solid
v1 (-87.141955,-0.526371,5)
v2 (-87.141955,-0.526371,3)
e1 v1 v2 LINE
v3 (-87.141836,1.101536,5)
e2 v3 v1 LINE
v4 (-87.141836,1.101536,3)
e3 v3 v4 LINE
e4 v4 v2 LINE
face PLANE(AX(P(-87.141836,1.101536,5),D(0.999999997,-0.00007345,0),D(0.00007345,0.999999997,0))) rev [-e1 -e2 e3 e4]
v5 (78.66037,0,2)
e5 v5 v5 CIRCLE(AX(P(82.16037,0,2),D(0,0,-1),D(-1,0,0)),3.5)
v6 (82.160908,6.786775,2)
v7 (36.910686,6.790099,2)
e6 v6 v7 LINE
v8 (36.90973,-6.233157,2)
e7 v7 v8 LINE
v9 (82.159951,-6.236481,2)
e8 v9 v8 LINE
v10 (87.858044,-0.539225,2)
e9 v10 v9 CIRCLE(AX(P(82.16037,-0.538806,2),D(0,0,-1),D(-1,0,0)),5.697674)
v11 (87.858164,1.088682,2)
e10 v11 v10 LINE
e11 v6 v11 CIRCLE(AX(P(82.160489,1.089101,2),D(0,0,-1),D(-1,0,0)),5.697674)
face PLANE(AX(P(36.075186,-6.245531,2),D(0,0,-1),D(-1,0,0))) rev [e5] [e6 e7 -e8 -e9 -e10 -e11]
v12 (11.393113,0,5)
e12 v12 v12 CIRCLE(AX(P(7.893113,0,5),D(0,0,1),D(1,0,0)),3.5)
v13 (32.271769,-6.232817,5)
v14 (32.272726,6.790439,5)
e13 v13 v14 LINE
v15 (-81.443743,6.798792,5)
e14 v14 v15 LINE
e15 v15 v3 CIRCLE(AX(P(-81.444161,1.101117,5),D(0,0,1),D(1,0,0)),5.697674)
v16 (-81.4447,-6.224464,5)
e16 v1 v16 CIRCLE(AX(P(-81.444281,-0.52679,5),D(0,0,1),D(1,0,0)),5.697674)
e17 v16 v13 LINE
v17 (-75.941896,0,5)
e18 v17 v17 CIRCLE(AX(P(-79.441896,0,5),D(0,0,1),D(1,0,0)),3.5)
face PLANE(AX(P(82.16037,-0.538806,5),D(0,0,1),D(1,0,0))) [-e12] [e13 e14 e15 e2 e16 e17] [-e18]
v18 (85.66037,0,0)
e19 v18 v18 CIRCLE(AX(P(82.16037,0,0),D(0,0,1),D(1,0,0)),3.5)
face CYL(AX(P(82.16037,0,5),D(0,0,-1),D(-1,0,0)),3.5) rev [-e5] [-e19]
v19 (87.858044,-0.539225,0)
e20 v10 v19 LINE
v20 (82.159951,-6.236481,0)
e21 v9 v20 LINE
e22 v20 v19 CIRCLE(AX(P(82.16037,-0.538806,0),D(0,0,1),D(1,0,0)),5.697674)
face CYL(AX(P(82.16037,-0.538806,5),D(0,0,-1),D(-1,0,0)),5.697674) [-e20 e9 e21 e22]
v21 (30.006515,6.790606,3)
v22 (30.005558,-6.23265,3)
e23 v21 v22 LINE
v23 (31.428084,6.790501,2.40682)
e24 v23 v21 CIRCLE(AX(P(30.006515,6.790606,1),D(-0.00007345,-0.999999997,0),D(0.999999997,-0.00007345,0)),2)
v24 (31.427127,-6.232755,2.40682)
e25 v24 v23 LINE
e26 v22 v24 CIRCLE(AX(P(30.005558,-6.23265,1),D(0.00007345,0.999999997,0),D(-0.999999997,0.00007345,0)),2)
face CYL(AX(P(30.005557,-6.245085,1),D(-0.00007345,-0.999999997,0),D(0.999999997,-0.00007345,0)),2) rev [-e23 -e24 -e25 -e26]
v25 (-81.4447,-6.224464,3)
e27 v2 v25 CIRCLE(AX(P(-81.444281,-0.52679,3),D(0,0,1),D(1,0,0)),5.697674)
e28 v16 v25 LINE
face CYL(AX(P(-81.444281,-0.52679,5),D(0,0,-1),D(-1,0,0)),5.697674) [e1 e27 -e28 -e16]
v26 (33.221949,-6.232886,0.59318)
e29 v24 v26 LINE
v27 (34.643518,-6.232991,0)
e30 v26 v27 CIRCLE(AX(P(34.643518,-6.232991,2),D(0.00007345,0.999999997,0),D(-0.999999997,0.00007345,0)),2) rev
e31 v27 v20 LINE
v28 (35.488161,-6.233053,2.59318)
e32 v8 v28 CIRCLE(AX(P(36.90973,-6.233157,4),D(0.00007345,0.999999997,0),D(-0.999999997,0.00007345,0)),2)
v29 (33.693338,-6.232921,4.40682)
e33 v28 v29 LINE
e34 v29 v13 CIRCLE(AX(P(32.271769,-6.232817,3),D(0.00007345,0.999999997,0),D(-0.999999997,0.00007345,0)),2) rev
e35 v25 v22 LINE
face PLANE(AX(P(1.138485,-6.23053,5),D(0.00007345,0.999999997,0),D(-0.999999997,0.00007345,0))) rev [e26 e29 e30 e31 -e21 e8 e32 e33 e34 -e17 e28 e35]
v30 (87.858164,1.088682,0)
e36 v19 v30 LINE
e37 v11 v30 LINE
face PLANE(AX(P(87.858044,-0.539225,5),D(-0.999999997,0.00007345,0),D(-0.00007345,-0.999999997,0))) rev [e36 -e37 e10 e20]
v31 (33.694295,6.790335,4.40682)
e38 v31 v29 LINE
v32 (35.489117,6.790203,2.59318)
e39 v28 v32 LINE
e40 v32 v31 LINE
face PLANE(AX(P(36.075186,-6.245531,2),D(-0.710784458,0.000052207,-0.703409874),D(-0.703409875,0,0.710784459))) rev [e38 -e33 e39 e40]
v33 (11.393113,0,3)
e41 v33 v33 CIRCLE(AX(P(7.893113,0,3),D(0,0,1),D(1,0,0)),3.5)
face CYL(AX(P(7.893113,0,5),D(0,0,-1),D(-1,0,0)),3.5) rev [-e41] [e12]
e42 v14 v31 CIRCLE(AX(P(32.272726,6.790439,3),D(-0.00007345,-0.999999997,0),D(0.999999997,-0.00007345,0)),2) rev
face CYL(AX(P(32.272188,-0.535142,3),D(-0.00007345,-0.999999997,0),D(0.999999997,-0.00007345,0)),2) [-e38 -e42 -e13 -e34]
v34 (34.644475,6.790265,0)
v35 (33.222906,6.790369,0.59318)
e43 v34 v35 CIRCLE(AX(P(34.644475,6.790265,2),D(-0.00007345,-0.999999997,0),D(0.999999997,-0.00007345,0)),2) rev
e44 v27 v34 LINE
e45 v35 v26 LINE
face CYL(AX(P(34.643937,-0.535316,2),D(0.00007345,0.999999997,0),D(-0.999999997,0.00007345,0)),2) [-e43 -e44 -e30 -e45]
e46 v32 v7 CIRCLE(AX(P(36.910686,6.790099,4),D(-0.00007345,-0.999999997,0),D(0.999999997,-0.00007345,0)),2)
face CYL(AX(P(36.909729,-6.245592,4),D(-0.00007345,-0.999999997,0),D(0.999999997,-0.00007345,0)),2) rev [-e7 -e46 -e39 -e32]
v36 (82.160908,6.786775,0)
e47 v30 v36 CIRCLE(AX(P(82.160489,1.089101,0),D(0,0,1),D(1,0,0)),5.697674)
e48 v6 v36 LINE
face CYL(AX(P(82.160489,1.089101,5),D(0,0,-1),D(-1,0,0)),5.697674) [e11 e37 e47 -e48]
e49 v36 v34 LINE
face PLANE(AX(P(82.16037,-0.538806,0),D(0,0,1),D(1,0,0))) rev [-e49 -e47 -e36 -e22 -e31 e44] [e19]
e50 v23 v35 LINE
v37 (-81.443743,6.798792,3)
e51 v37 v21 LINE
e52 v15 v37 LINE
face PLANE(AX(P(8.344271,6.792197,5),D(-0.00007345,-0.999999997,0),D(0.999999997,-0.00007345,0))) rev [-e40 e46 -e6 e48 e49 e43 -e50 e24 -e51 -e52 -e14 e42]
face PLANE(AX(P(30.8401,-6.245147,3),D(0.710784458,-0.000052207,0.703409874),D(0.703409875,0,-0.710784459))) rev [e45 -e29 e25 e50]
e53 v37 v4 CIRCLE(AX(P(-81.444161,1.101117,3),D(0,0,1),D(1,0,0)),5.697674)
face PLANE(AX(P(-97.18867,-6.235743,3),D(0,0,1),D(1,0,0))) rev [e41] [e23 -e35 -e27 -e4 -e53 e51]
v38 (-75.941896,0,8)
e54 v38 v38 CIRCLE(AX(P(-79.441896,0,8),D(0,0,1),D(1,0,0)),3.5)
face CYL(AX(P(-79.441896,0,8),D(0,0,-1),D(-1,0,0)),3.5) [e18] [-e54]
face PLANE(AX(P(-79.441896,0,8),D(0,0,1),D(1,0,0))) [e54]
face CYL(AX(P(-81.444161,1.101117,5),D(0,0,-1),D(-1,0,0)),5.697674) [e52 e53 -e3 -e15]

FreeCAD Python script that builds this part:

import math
import FreeCAD as App
import Part
import Sketcher


def edges_at(feature, points):
    """Names of the edges that pass closest to the given points."""
    edges = feature.Shape.Edges
    near = lambda p: min(range(len(edges)), key=lambda i: edges[i].distToShape(Part.Vertex(*p))[0])
    return sorted({f"Edge{near(p) + 1}" for p in points})

doc = App.newDocument("Part")
params = doc.addObject("Spreadsheet::Sheet", "Params")
for row, (alias, value) in enumerate([
    ("sketch1_diameter", "7 mm"),
    ("sketch1_diameter2", "7 mm"),
    ("pad1_length", "5 mm"),
    ("sketch2_height", "3 mm"),
    ("fillet_radius", "2 mm"),
    ("sketch3_diameter", "7 mm"),
    ("pad2_length", "3 mm"),
], start=1):
    params.set(f"A{row}", alias)
    params.set(f"B{row}", "=" + value)
    params.setAlias(f"B{row}", alias)

body = doc.addObject("PartDesign::Body", "Body")

sketch1 = body.newObject("Sketcher::SketchObject", "Sketch")
sketch1.AttachmentSupport = (doc.getObject("XY_Plane"), [""])
sketch1.MapMode = "FlatFace"
sketch1.addGeometry([
    Part.LineSegment(App.Vector(1.138485, -6.23053, 0), App.Vector(82.159951, -6.236481, 0)),
    Part.ArcOfCircle(Part.Circle(App.Vector(82.16037, -0.538806, 0), App.Vector(0, 0, 1), 5.697674), math.radians(-90.004208), math.radians(-0.004208)),
    Part.LineSegment(App.Vector(87.858044, -0.539225, 0), App.Vector(87.858164, 1.088682, 0)),
    Part.ArcOfCircle(Part.Circle(App.Vector(82.160489, 1.089101, 0), App.Vector(0, 0, 1), 5.697674), math.radians(-0.004208), math.radians(89.995792)),
    Part.LineSegment(App.Vector(82.160908, 6.786775, 0), App.Vector(8.344271, 6.792197, 0)),
    Part.LineSegment(App.Vector(8.344271, 6.792197, 0), App.Vector(-81.443743, 6.798792, 0)),
    Part.ArcOfCircle(Part.Circle(App.Vector(-81.444161, 1.101117, 0), App.Vector(0, 0, 1), 5.697674), math.radians(89.995792), math.radians(179.995792)),
    Part.LineSegment(App.Vector(-87.141836, 1.101536, 0), App.Vector(-87.141955, -0.526371, 0)),
    Part.ArcOfCircle(Part.Circle(App.Vector(-81.444281, -0.52679, 0), App.Vector(0, 0, 1), 5.697674), math.radians(179.995792), math.radians(269.995792)),
    Part.LineSegment(App.Vector(-81.4447, -6.224464, 0), App.Vector(1.138485, -6.23053, 0)),
    Part.Circle(App.Vector(7.893113, 0, 0), App.Vector(0, 0, 1), 3.5),
    Part.Circle(App.Vector(82.16037, 0, 0), App.Vector(0, 0, 1), 3.5),
], False)
sketch1.addConstraint([
    Sketcher.Constraint("Coincident", 0, 2, 1, 1),
    Sketcher.Constraint("Coincident", 1, 2, 2, 1),
    Sketcher.Constraint("Coincident", 2, 2, 3, 1),
    Sketcher.Constraint("Coincident", 3, 2, 4, 1),
    Sketcher.Constraint("Coincident", 4, 2, 5, 1),
    Sketcher.Constraint("Coincident", 5, 2, 6, 1),
    Sketcher.Constraint("Coincident", 6, 2, 7, 1),
    Sketcher.Constraint("Coincident", 7, 2, 8, 1),
    Sketcher.Constraint("Coincident", 8, 2, 9, 1),
    Sketcher.Constraint("Coincident", 9, 2, 0, 1),
    Sketcher.Constraint("PointOnObject", 10, 3, -1),
    Sketcher.Constraint("PointOnObject", 11, 3, -1),
    Sketcher.Constraint("Diameter", 10, 7.0),
    Sketcher.Constraint("Diameter", 11, 7.0),
    Sketcher.Constraint("Radius", 1, 5.697674),
    Sketcher.Constraint("Radius", 3, 5.697674),
    Sketcher.Constraint("Radius", 6, 5.697674),
    Sketcher.Constraint("Radius", 8, 5.697674),
    Sketcher.Constraint("DistanceY", 1, 2, 3, 2, 7.326),
    Sketcher.Constraint("DistanceY", 8, 2, 6, 2, 7.326),
    Sketcher.Constraint("DistanceY", -1, 1, 3, 3, 1.089101),
    Sketcher.Constraint("DistanceX", 8, 2, -1, 1, 81.4447),
    Sketcher.Constraint("DistanceX", 4, 2, 11, 3, 73.816099),
    Sketcher.Constraint("DistanceX", 4, 2, 1, 3, 73.816099),
    Sketcher.Constraint("DistanceX", -1, 1, 1, 3, 82.16037),
    Sketcher.Constraint("DistanceX", -1, 1, 3, 3, 82.160489),
    Sketcher.Constraint("DistanceX", 6, 3, -1, 1, 81.444161),
    Sketcher.Constraint("DistanceX", 8, 3, -1, 1, 81.444281),
    Sketcher.Constraint("DistanceY", 8, 3, -1, 1, 0.52679),
    Sketcher.Constraint("DistanceX", -1, 1, 0, 2, 82.159951),
    Sketcher.Constraint("DistanceY", 0, 2, -1, 1, 6.236481),
    Sketcher.Constraint("DistanceY", -1, 1, 5, 2, 6.798792),
    Sketcher.Constraint("DistanceY", 7, 2, -1, 1, 0.526371),
    Sketcher.Constraint("DistanceY", 9, 2, -1, 1, 6.23053),
    Sketcher.Constraint("DistanceX", 10, 3, 0, 2, 74.266839),
    Sketcher.Constraint("DistanceY", 2, 2, 3, 3, 0.000418),
    Sketcher.Constraint("DistanceX", 3, 3, 3, 2, 0.000418),
    Sketcher.Constraint("DistanceY", 3, 2, 4, 2, 0.005422),
    Sketcher.Constraint("DistanceX", 6, 3, 5, 2, 0.000418),
    Sketcher.Constraint("DistanceX", 9, 2, 10, 3, 6.754628),
])
sketch1.setExpression("Constraints[12]", "Params.sketch1_diameter")
sketch1.setExpression("Constraints[13]", "Params.sketch1_diameter2")
pad1 = body.newObject("PartDesign::Pad", "Pad")
pad1.Profile = sketch1
pad1.setExpression("Length", "Params.pad1_length")

sketch2 = body.newObject("Sketcher::SketchObject", "Sketch001")
sketch2.Placement = App.Placement(App.Vector(0.000499, 6.79281, 0), App.Rotation(App.Vector(0.999999997, -0.00007345, 0), App.Vector(0, 0, -0.999999999), App.Vector(0.00007345, 0.999999997, 0), "ZXY"))
sketch2.addGeometry([
    Part.LineSegment(App.Vector(-97.2, 0, 0), App.Vector(-97.2, -3, 0)),
    Part.LineSegment(App.Vector(-97.2, -3, 0), App.Vector(30.8, -3, 0)),
    Part.LineSegment(App.Vector(30.8, -3, 0), App.Vector(33.8, 0, 0)),
    Part.LineSegment(App.Vector(33.8, 0, 0), App.Vector(-97.2, 0, 0)),
    Part.LineSegment(App.Vector(36.1, -2, 0), App.Vector(33.1, -5, 0)),
    Part.LineSegment(App.Vector(33.1, -5, 0), App.Vector(91.1, -5, 0)),
    Part.LineSegment(App.Vector(91.1, -5, 0), App.Vector(91.1, -2, 0)),
    Part.LineSegment(App.Vector(91.1, -2, 0), App.Vector(36.1, -2, 0)),
], False)
sketch2.addConstraint([
    Sketcher.Constraint("Coincident", 0, 2, 1, 1),
    Sketcher.Constraint("Coincident", 1, 2, 2, 1),
    Sketcher.Constraint("Coincident", 2, 2, 3, 1),
    Sketcher.Constraint("Coincident", 3, 2, 0, 1),
    Sketcher.Constraint("Coincident", 4, 2, 5, 1),
    Sketcher.Constraint("Coincident", 5, 2, 6, 1),
    Sketcher.Constraint("Coincident", 6, 2, 7, 1),
    Sketcher.Constraint("Coincident", 7, 2, 4, 1),
    Sketcher.Constraint("Vertical", 0),
    Sketcher.Constraint("Horizontal", 1),
    Sketcher.Constraint("Horizontal", 3),
    Sketcher.Constraint("Horizontal", 5),
    Sketcher.Constraint("Vertical", 6),
    Sketcher.Constraint("Horizontal", 7),
    Sketcher.Constraint("PointOnObject", 2, 2, -1),
    Sketcher.Constraint("Parallel", 2, 4),
    Sketcher.Constraint("Equal", 0, 6),
    Sketcher.Constraint("DistanceY", 0, 2, 0, 1, 3.0),
    Sketcher.Constraint("DistanceY", 4, 2, -1, 1, 5.0),
    Sketcher.Constraint("DistanceX", 1, 1, 1, 2, 128.028771),
    Sketcher.Constraint("Distance", 2, 4.220689),
    Sketcher.Constraint("DistanceX", 5, 1, 5, 2, 58.033808),
    Sketcher.Constraint("DistanceX", -1, 1, 1, 2, 30.840559),
    Sketcher.Constraint("DistanceX", -1, 1, 4, 2, 33.10677),
])
sketch2.setExpression("Constraints[17]", "Params.sketch2_height")
pocket1 = body.newObject("PartDesign::Pocket", "Pocket")
pocket1.Profile = sketch2
pocket1.Type = "ThroughAll"
doc.recompute()

fillet = body.newObject("PartDesign::Fillet", "Fillet")
fillet.Base = (pocket1, edges_at(pocket1, [
    (33.809, 0.279, 0),
    (30.841, 0.279, 3),
    (33.107, 0.279, 5),
    (36.076, 0.279, 2),
]))
fillet.setExpression("Radius", "Params.fillet_radius")

sketch3 = body.newObject("Sketcher::SketchObject", "Sketch002")
sketch3.AttachmentSupport = (doc.getObject("XY_Plane"), [""])
sketch3.MapMode = "FlatFace"
sketch3.AttachmentOffset = App.Placement(App.Vector(0, 0, 5), App.Rotation())
sketch3.addGeometry(Part.Circle(App.Vector(-79.4, 0, 0), App.Vector(0, 0, 1), 3.5), False)
sketch3.addConstraint([
    Sketcher.Constraint("PointOnObject", 0, 3, -1),
    Sketcher.Constraint("Diameter", 0, 7.0),
    Sketcher.Constraint("DistanceX", 0, 3, -1, 1, 79.441896),
])
sketch3.setExpression("Constraints[1]", "Params.sketch3_diameter")
pad2 = body.newObject("PartDesign::Pad", "Pad001")
pad2.Profile = sketch3
pad2.setExpression("Length", "Params.pad2_length")

doc.recompute()
